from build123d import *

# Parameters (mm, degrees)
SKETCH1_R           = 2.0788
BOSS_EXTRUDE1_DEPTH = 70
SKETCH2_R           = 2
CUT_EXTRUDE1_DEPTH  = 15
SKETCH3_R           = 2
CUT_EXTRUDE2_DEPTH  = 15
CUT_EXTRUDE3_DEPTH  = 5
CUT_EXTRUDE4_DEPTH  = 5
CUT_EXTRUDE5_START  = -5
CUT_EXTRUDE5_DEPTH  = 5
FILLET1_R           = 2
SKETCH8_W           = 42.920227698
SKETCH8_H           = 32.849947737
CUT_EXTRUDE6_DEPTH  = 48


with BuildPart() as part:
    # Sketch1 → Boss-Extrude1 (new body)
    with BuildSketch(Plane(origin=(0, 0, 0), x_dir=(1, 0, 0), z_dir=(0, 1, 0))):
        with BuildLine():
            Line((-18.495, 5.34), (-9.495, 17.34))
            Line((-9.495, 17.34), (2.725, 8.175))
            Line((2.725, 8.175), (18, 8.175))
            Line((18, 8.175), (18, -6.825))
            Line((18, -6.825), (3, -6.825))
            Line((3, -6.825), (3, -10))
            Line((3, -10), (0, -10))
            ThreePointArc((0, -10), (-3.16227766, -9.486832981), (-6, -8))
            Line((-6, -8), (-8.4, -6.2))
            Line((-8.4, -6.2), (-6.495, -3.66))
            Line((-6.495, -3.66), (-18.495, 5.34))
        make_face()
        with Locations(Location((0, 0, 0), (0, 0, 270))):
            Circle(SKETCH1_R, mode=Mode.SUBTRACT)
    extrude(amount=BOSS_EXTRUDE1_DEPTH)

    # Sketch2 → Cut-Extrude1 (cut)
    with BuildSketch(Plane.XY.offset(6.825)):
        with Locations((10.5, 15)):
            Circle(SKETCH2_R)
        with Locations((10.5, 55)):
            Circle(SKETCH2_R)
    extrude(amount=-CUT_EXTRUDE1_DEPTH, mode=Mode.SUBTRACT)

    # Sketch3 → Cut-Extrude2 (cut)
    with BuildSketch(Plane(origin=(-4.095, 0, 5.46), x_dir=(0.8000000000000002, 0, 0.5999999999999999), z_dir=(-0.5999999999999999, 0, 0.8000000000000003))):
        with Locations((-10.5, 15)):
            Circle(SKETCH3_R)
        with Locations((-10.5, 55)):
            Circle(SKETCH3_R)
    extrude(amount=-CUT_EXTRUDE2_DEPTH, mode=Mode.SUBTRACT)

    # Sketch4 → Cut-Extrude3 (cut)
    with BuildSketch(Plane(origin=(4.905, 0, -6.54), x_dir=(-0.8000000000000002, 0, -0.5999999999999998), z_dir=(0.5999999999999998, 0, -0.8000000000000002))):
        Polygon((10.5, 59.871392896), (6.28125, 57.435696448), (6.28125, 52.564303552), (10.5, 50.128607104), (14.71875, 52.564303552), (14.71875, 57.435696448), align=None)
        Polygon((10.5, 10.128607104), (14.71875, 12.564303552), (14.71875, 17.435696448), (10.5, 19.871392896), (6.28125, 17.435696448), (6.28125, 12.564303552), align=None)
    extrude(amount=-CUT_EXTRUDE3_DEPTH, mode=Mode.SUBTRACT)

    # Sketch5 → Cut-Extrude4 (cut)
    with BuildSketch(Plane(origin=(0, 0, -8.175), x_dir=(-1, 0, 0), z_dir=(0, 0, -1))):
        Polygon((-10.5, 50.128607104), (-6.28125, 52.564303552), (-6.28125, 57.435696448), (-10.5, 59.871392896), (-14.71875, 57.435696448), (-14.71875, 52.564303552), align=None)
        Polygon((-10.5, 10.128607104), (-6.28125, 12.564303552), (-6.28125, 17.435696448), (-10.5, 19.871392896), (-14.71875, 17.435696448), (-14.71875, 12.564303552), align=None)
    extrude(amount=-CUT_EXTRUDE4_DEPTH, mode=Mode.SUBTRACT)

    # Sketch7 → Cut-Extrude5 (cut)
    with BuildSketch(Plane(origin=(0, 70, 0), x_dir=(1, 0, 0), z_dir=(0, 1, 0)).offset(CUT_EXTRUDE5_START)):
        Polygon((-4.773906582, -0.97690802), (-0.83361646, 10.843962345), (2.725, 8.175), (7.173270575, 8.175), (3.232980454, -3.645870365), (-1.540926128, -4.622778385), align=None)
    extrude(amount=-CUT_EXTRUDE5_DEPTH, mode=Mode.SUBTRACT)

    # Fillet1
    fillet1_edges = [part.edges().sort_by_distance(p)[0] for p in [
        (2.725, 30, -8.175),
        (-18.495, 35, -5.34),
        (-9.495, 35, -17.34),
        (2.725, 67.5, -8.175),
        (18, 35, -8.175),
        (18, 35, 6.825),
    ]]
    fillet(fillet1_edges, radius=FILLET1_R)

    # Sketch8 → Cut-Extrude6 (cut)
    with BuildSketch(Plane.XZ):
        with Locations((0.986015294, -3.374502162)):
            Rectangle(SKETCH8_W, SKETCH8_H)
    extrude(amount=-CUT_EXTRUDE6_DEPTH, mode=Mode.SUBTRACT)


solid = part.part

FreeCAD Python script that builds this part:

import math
import FreeCAD as App
import Part
import Sketcher

V = App.Vector
Q = App.Units.Quantity


def edges_at(feature, points):
    """Names of the edges that pass closest to the given points."""
    edges = feature.Shape.Edges
    near = lambda p: min(range(len(edges)), key=lambda i: edges[i].distToShape(Part.Vertex(*p))[0])
    return sorted({f"Edge{near(p) + 1}" for p in points})

doc = App.newDocument("Part")
body = doc.addObject("PartDesign::Body", "Body")

# Sketch on XZ plane
sketch1 = body.newObject("Sketcher::SketchObject", "Sketch")
sketch1.AttachmentSupport = (doc.getObject("XZ_Plane"), [""])
sketch1.MapMode = "FlatFace"
sketch1.addGeometry(Part.LineSegment(V(-9.5, -17.3, 0), V(-18.5, -5.3, 0)), False)
sketch1.addGeometry(Part.LineSegment(V(-18.5, -5.3, 0), V(-6.5, 3.7, 0)), False)
sketch1.addGeometry(Part.LineSegment(V(-6.5, 3.7, 0), V(-8.4, 6.2, 0)), False)
sketch1.addGeometry(Part.LineSegment(V(-8.4, 6.2, 0), V(-6, 8, 0)), False)
sketch1.addGeometry(Part.ArcOfCircle(Part.Circle(V(0, 0, 0), V(0, 0, 1), 10), math.radians(90), math.radians(127)), False)
sketch1.addGeometry(Part.LineSegment(V(0, 10, 0), V(3, 10, 0)), False)
sketch1.addGeometry(Part.LineSegment(V(3, 10, 0), V(3, 6.8, 0)), False)
sketch1.addGeometry(Part.LineSegment(V(3, 6.8, 0), V(18, 6.8, 0)), False)
sketch1.addGeometry(Part.LineSegment(V(18, 6.8, 0), V(18, -8.2, 0)), False)
sketch1.addGeometry(Part.LineSegment(V(18, -8.2, 0), V(2.7, -8.2, 0)), False)
sketch1.addGeometry(Part.LineSegment(V(2.7, -8.2, 0), V(-9.5, -17.3, 0)), False)
sketch1.addGeometry(Part.Circle(V(0, 0, 0), V(0, 0, 1), 2.1), False)
sketch1.addConstraint(Sketcher.Constraint("Coincident", 0, 2, 1, 1))
sketch1.addConstraint(Sketcher.Constraint("Coincident", 1, 2, 2, 1))
sketch1.addConstraint(Sketcher.Constraint("Coincident", 2, 2, 3, 1))
sketch1.addConstraint(Sketcher.Constraint("Tangent", 3, 2, 4, 2))
sketch1.addConstraint(Sketcher.Constraint("Tangent", 4, 1, 5, 1))
sketch1.addConstraint(Sketcher.Constraint("Coincident", 5, 2, 6, 1))
sketch1.addConstraint(Sketcher.Constraint("Coincident", 6, 2, 7, 1))
sketch1.addConstraint(Sketcher.Constraint("Coincident", 7, 2, 8, 1))
sketch1.addConstraint(Sketcher.Constraint("Coincident", 8, 2, 9, 1))
sketch1.addConstraint(Sketcher.Constraint("Coincident", 9, 2, 10, 1))
sketch1.addConstraint(Sketcher.Constraint("Coincident", 10, 2, 0, 1))
sketch1.addConstraint(Sketcher.Constraint("Horizontal", 5))
sketch1.addConstraint(Sketcher.Constraint("Vertical", 6))
sketch1.addConstraint(Sketcher.Constraint("Horizontal", 7))
sketch1.addConstraint(Sketcher.Constraint("Vertical", 8))
sketch1.addConstraint(Sketcher.Constraint("Horizontal", 9))
sketch1.addConstraint(Sketcher.Constraint("Coincident", 4, 3, -1, 1))
sketch1.addConstraint(Sketcher.Constraint("Coincident", 11, 3, -1, 1))
sketch1.addConstraint(Sketcher.Constraint("Perpendicular", 0, 1))
sketch1.addConstraint(Sketcher.Constraint("Perpendicular", 1, 2))
sketch1.addConstraint(Sketcher.Constraint("Perpendicular", 2, 3))
sketch1.addConstraint(Sketcher.Constraint("Parallel", 3, 10))
sketch1.addConstraint(Sketcher.Constraint("Equal", 7, 8))
sketch1.addConstraint(Sketcher.Constraint("Equal", 0, 1))
sketch1.addConstraint(Sketcher.Constraint("Radius", 4, Q("10 mm")))
sketch1.addConstraint(Sketcher.Constraint("DistanceX", 5, 1, 5, 2, Q("3 mm")))
sketch1.addConstraint(Sketcher.Constraint("DistanceX", 7, 1, 7, 2, Q("15 mm")))
sketch1.addConstraint(Sketcher.Constraint("Distance", 0, Q("15 mm")))
sketch1.addConstraint(Sketcher.Constraint("Distance", 3, Q("3 mm")))
sketch1.addConstraint(Sketcher.Constraint("DistanceX", 3, 2, -1, 1, Q("6 mm")))
sketch1.addConstraint(Sketcher.Constraint("Diameter", 11, Q("4.1576 mm")))
sketch1.addConstraint(Sketcher.Constraint("DistanceX", 9, 2, 9, 1, Q("15.275 mm")))
sketch1.addConstraint(Sketcher.Constraint("DistanceY", 6, 2, 6, 1, Q("3.175 mm")))
pad1 = body.newObject("PartDesign::Pad", "Pad")
pad1.Profile = sketch1
pad1.Length = 70
pad1.Reversed = True

# Sketch on XY plane
sketch2 = body.newObject("Sketcher::SketchObject", "Sketch001")
sketch2.AttachmentSupport = (doc.getObject("XY_Plane"), [""])
sketch2.MapMode = "FlatFace"
sketch2.AttachmentOffset = App.Placement(V(0, 0, 6.825), App.Rotation())
sketch2.addGeometry(Part.Circle(V(10.5, 15, 0), V(0, 0, 1), 2), False)
sketch2.addGeometry(Part.Circle(V(10.5, 55, 0), V(0, 0, 1), 2), False)
sketch2.addConstraint(Sketcher.Constraint("Equal", 0, 1))
sketch2.addConstraint(Sketcher.Constraint("Vertical", 0, 3, 1, 3))
sketch2.addConstraint(Sketcher.Constraint("Diameter", 0, Q("4 mm")))
sketch2.addConstraint(Sketcher.Constraint("DistanceY", -1, 1, 0, 3, Q("15 mm")))
sketch2.addConstraint(Sketcher.Constraint("DistanceY", -1, 1, 1, 3, Q("55 mm")))
sketch2.addConstraint(Sketcher.Constraint("DistanceX", -1, 1, 0, 3, Q("10.5 mm")))
pocket1 = body.newObject("PartDesign::Pocket", "Pocket")
pocket1.Profile = sketch2
pocket1.Length = 15

# Sketch on an angled plane
sketch3 = body.newObject("Sketcher::SketchObject", "Sketch002")
sketch3.Placement = App.Placement(V(-4.095, 0, 5.46), App.Rotation(V(0.8, 0, 0.6), V(0, 1, 0), V(-0.6, 0, 0.8), "ZXY"))
sketch3.addGeometry(Part.Circle(V(-10.5, 15, 0), V(0, 0, 1), 2), False)
sketch3.addGeometry(Part.Circle(V(-10.5, 55, 0), V(0, 0, 1), 2), False)
sketch3.addConstraint(Sketcher.Constraint("Equal", 0, 1))
sketch3.addConstraint(Sketcher.Constraint("Vertical", 0, 3, 1, 3))
sketch3.addConstraint(Sketcher.Constraint("Diameter", 0, Q("4 mm")))
sketch3.addConstraint(Sketcher.Constraint("DistanceY", -1, 1, 0, 3, Q("15 mm")))
sketch3.addConstraint(Sketcher.Constraint("DistanceY", -1, 1, 1, 3, Q("55 mm")))
sketch3.addConstraint(Sketcher.Constraint("DistanceX", 0, 3, -1, 1, Q("10.5 mm")))
pocket2 = body.newObject("PartDesign::Pocket", "Pocket001")
pocket2.Profile = sketch3
pocket2.Length = 15

# Sketch on an angled plane
sketch4 = body.newObject("Sketcher::SketchObject", "Sketch003")
sketch4.Placement = App.Placement(V(4.905, 0, -6.54), App.Rotation(V(-0.8, 0, -0.6), V(0, 1, 0), V(0.6, 0, -0.8), "ZXY"))
sketch4.addGeometry(Part.LineSegment(V(10.5, 59.9, 0), V(6.3, 57.4, 0)), False)
sketch4.addGeometry(Part.LineSegment(V(6.3, 57.4, 0), V(6.3, 52.6, 0)), False)
sketch4.addGeometry(Part.LineSegment(V(6.3, 52.6, 0), V(10.5, 50.1, 0)), False)
sketch4.addGeometry(Part.LineSegment(V(10.5, 50.1, 0), V(14.7, 52.6, 0)), False)
sketch4.addGeometry(Part.LineSegment(V(14.7, 52.6, 0), V(14.7, 57.4, 0)), False)
sketch4.addGeometry(Part.LineSegment(V(14.7, 57.4, 0), V(10.5, 59.9, 0)), False)
sketch4.addGeometry(Part.LineSegment(V(10.5, 10.1, 0), V(14.7, 12.6, 0)), False)
sketch4.addGeometry(Part.LineSegment(V(14.7, 12.6, 0), V(14.7, 17.4, 0)), False)
sketch4.addGeometry(Part.LineSegment(V(14.7, 17.4, 0), V(10.5, 19.9, 0)), False)
sketch4.addGeometry(Part.LineSegment(V(10.5, 19.9, 0), V(6.3, 17.4, 0)), False)
sketch4.addGeometry(Part.LineSegment(V(6.3, 17.4, 0), V(6.3, 12.6, 0)), False)
sketch4.addGeometry(Part.LineSegment(V(6.3, 12.6, 0), V(10.5, 10.1, 0)), False)
sketch4.addConstraint(Sketcher.Constraint("Coincident", 0, 2, 1, 1))
sketch4.addConstraint(Sketcher.Constraint("Coincident", 1, 2, 2, 1))
sketch4.addConstraint(Sketcher.Constraint("Coincident", 2, 2, 3, 1))
sketch4.addConstraint(Sketcher.Constraint("Coincident", 3, 2, 4, 1))
sketch4.addConstraint(Sketcher.Constraint("Coincident", 4, 2, 5, 1))
sketch4.addConstraint(Sketcher.Constraint("Coincident", 5, 2, 0, 1))
sketch4.addConstraint(Sketcher.Constraint("Coincident", 6, 2, 7, 1))
sketch4.addConstraint(Sketcher.Constraint("Coincident", 7, 2, 8, 1))
sketch4.addConstraint(Sketcher.Constraint("Coincident", 8, 2, 9, 1))
sketch4.addConstraint(Sketcher.Constraint("Coincident", 9, 2, 10, 1))
sketch4.addConstraint(Sketcher.Constraint("Coincident", 10, 2, 11, 1))
sketch4.addConstraint(Sketcher.Constraint("Coincident", 11, 2, 6, 1))
sketch4.addConstraint(Sketcher.Constraint("Vertical", 1))
sketch4.addConstraint(Sketcher.Constraint("Vertical", 4))
sketch4.addConstraint(Sketcher.Constraint("Vertical", 7))
sketch4.addConstraint(Sketcher.Constraint("Vertical", 10))
sketch4.addConstraint(Sketcher.Constraint("Parallel", 0, 3))
sketch4.addConstraint(Sketcher.Constraint("Parallel", 2, 5))
sketch4.addConstraint(Sketcher.Constraint("Parallel", 3, 6))
sketch4.addConstraint(Sketcher.Constraint("Parallel", 5, 8))
sketch4.addConstraint(Sketcher.Constraint("Parallel", 6, 9))
sketch4.addConstraint(Sketcher.Constraint("Parallel", 8, 11))
sketch4.addConstraint(Sketcher.Constraint("Horizontal", 1, 2, 3, 2))
sketch4.addConstraint(Sketcher.Constraint("Horizontal", 0, 2, 4, 2))
sketch4.addConstraint(Sketcher.Constraint("Horizontal", 7, 2, 9, 2))
sketch4.addConstraint(Sketcher.Constraint("Horizontal", 6, 2, 10, 2))
sketch4.addConstraint(Sketcher.Constraint("Vertical", 2, 2, 5, 2))
sketch4.addConstraint(Sketcher.Constraint("Vertical", 4, 2, 6, 2))
sketch4.addConstraint(Sketcher.Constraint("Vertical", 5, 2, 8, 2))
sketch4.addConstraint(Sketcher.Constraint("Equal", 4, 7))
sketch4.addConstraint(Sketcher.Constraint("Angle", 0, Q("-150 deg")))
sketch4.addConstraint(Sketcher.Constraint("DistanceY", 6, 2, 3, 2, Q("40 mm")))
sketch4.addConstraint(Sketcher.Constraint("DistanceX", -1, 1, 2, 2, Q("10.5 mm")))
sketch4.addConstraint(Sketcher.Constraint("DistanceX", 1, 2, 3, 2, Q("8.4375 mm")))
sketch4.addConstraint(Sketcher.Constraint("DistanceY", 1, 2, 1, 1, Q("4.871393 mm")))
sketch4.addConstraint(Sketcher.Constraint("DistanceY", -1, 1, 0, 2, Q("57.435696 mm")))
pocket3 = body.newObject("PartDesign::Pocket", "Pocket002")
pocket3.Profile = sketch4
pocket3.Length = 5

# Sketch on XY plane
sketch5 = body.newObject("Sketcher::SketchObject", "Sketch004")
sketch5.AttachmentSupport = (doc.getObject("XY_Plane"), [""])
sketch5.MapMode = "FlatFace"
sketch5.AttachmentOffset = App.Placement(V(0, 0, -8.175), App.Rotation())
sketch5.addGeometry(Part.LineSegment(V(10.5, 50.1, 0), V(6.3, 52.6, 0)), False)
sketch5.addGeometry(Part.LineSegment(V(6.3, 52.6, 0), V(6.3, 57.4, 0)), False)
sketch5.addGeometry(Part.LineSegment(V(6.3, 57.4, 0), V(10.5, 59.9, 0)), False)
sketch5.addGeometry(Part.LineSegment(V(10.5, 59.9, 0), V(14.7, 57.4, 0)), False)
sketch5.addGeometry(Part.LineSegment(V(14.7, 57.4, 0), V(14.7, 52.6, 0)), False)
sketch5.addGeometry(Part.LineSegment(V(14.7, 52.6, 0), V(10.5, 50.1, 0)), False)
sketch5.addGeometry(Part.LineSegment(V(10.5, 10.1, 0), V(6.3, 12.6, 0)), False)
sketch5.addGeometry(Part.LineSegment(V(6.3, 12.6, 0), V(6.3, 17.4, 0)), False)
sketch5.addGeometry(Part.LineSegment(V(6.3, 17.4, 0), V(10.5, 19.9, 0)), False)
sketch5.addGeometry(Part.LineSegment(V(10.5, 19.9, 0), V(14.7, 17.4, 0)), False)
sketch5.addGeometry(Part.LineSegment(V(14.7, 17.4, 0), V(14.7, 12.6, 0)), False)
sketch5.addGeometry(Part.LineSegment(V(14.7, 12.6, 0), V(10.5, 10.1, 0)), False)
sketch5.addConstraint(Sketcher.Constraint("Coincident", 0, 2, 1, 1))
sketch5.addConstraint(Sketcher.Constraint("Coincident", 1, 2, 2, 1))
sketch5.addConstraint(Sketcher.Constraint("Coincident", 2, 2, 3, 1))
sketch5.addConstraint(Sketcher.Constraint("Coincident", 3, 2, 4, 1))
sketch5.addConstraint(Sketcher.Constraint("Coincident", 4, 2, 5, 1))
sketch5.addConstraint(Sketcher.Constraint("Coincident", 5, 2, 0, 1))
sketch5.addConstraint(Sketcher.Constraint("Coincident", 6, 2, 7, 1))
sketch5.addConstraint(Sketcher.Constraint("Coincident", 7, 2, 8, 1))
sketch5.addConstraint(Sketcher.Constraint("Coincident", 8, 2, 9, 1))
sketch5.addConstraint(Sketcher.Constraint("Coincident", 9, 2, 10, 1))
sketch5.addConstraint(Sketcher.Constraint("Coincident", 10, 2, 11, 1))
sketch5.addConstraint(Sketcher.Constraint("Coincident", 11, 2, 6, 1))
sketch5.addConstraint(Sketcher.Constraint("Vertical", 1))
sketch5.addConstraint(Sketcher.Constraint("Vertical", 4))
sketch5.addConstraint(Sketcher.Constraint("Vertical", 7))
sketch5.addConstraint(Sketcher.Constraint("Vertical", 10))
sketch5.addConstraint(Sketcher.Constraint("Parallel", 0, 3))
sketch5.addConstraint(Sketcher.Constraint("Parallel", 2, 5))
sketch5.addConstraint(Sketcher.Constraint("Parallel", 3, 6))
sketch5.addConstraint(Sketcher.Constraint("Parallel", 5, 8))
sketch5.addConstraint(Sketcher.Constraint("Parallel", 6, 9))
sketch5.addConstraint(Sketcher.Constraint("Parallel", 8, 11))
sketch5.addConstraint(Sketcher.Constraint("Horizontal", 1, 2, 3, 2))
sketch5.addConstraint(Sketcher.Constraint("Horizontal", 0, 2, 4, 2))
sketch5.addConstraint(Sketcher.Constraint("Horizontal", 7, 2, 9, 2))
sketch5.addConstraint(Sketcher.Constraint("Horizontal", 6, 2, 10, 2))
sketch5.addConstraint(Sketcher.Constraint("Vertical", 2, 2, 5, 2))
sketch5.addConstraint(Sketcher.Constraint("Vertical", 1, 2, 6, 2))
sketch5.addConstraint(Sketcher.Constraint("Vertical", 5, 2, 8, 2))
sketch5.addConstraint(Sketcher.Constraint("Equal", 4, 7))
sketch5.addConstraint(Sketcher.Constraint("Angle", 0, Q("150 deg")))
sketch5.addConstraint(Sketcher.Constraint("DistanceY", 6, 2, 0, 2, Q("40 mm")))
sketch5.addConstraint(Sketcher.Constraint("DistanceX", -1, 1, 2, 2, Q("10.5 mm")))
sketch5.addConstraint(Sketcher.Constraint("DistanceX", 1, 2, 3, 2, Q("8.4375 mm")))
sketch5.addConstraint(Sketcher.Constraint("DistanceY", 1, 1, 1, 2, Q("4.871393 mm")))
sketch5.addConstraint(Sketcher.Constraint("DistanceY", -1, 1, 0, 2, Q("52.564304 mm")))
pocket4 = body.newObject("PartDesign::Pocket", "Pocket003")
pocket4.Profile = sketch5
pocket4.Length = 5
pocket4.Reversed = True

# Sketch on XZ plane
sketch6 = body.newObject("Sketcher::SketchObject", "Sketch005")
sketch6.AttachmentSupport = (doc.getObject("XZ_Plane"), [""])
sketch6.MapMode = "FlatFace"
sketch6.AttachmentOffset = App.Placement(V(0, 0, -65), App.Rotation())
sketch6.addGeometry(Part.LineSegment(V(-0.8, -10.8, 0), V(-4.8, 1, 0)), False)
sketch6.addGeometry(Part.LineSegment(V(-4.8, 1, 0), V(-1.5, 4.6, 0)), False)
sketch6.addGeometry(Part.LineSegment(V(-1.5, 4.6, 0), V(3.2, 3.6, 0)), False)
sketch6.addGeometry(Part.LineSegment(V(3.2, 3.6, 0), V(7.2, -8.2, 0)), False)
sketch6.addGeometry(Part.LineSegment(V(7.2, -8.2, 0), V(2.7, -8.2, 0)), False)
sketch6.addGeometry(Part.LineSegment(V(2.7, -8.2, 0), V(-0.8, -10.8, 0)), False)
sketch6.addConstraint(Sketcher.Constraint("Coincident", 0, 2, 1, 1))
sketch6.addConstraint(Sketcher.Constraint("Coincident", 1, 2, 2, 1))
sketch6.addConstraint(Sketcher.Constraint("Coincident", 2, 2, 3, 1))
sketch6.addConstraint(Sketcher.Constraint("Coincident", 3, 2, 4, 1))
sketch6.addConstraint(Sketcher.Constraint("Coincident", 4, 2, 5, 1))
sketch6.addConstraint(Sketcher.Constraint("Coincident", 5, 2, 0, 1))
sketch6.addConstraint(Sketcher.Constraint("Horizontal", 4))
sketch6.addConstraint(Sketcher.Constraint("Parallel", 0, 3))
sketch6.addConstraint(Sketcher.Constraint("Equal", 1, 2))
sketch6.addConstraint(Sketcher.Constraint("Equal", 0, 3))
sketch6.addConstraint(Sketcher.Constraint("DistanceY", 3, 2, -1, 1, Q("8.175 mm")))
sketch6.addConstraint(Sketcher.Constraint("DistanceX", -1, 1, 4, 2, Q("2.725 mm")))
sketch6.addConstraint(Sketcher.Constraint("DistanceX", 4, 2, 4, 1, Q("4.448271 mm")))
sketch6.addConstraint(Sketcher.Constraint("Distance", 0, Q("12.460291 mm")))
sketch6.addConstraint(Sketcher.Constraint("Distance", 5, Q("4.448271 mm")))
sketch6.addConstraint(Sketcher.Constraint("DistanceY", -1, 1, 0, 2, Q("0.976908 mm")))
sketch6.addConstraint(Sketcher.Constraint("DistanceY", -1, 1, 1, 2, Q("4.622778 mm")))
sketch6.addConstraint(Sketcher.Constraint("DistanceX", -1, 1, 2, 2, Q("3.23298 mm")))
pocket5 = body.newObject("PartDesign::Pocket", "Pocket004")
pocket5.Profile = sketch6
pocket5.Length = 5
pocket5.Reversed = True
doc.recompute()

fillet = body.newObject("PartDesign::Fillet", "Fillet")
fillet.Base = (pocket5, edges_at(pocket5, [
    (2.725, 30, -8.175),
    (-18.495, 35, -5.34),
    (-9.495, 35, -17.34),
    (2.725, 67.5, -8.175),
    (18, 35, -8.175),
    (18, 35, 6.825),
]))
fillet.Radius = 2

# Sketch on XZ plane
sketch7 = body.newObject("Sketcher::SketchObject", "Sketch006")
sketch7.AttachmentSupport = (doc.getObject("XZ_Plane"), [""])
sketch7.MapMode = "FlatFace"
sketch7.addGeometry(Part.LineSegment(V(-20, 13, 0), V(-20, -20, 0)), False)
sketch7.addGeometry(Part.LineSegment(V(-20, -20, 0), V(22, -20, 0)), False)
sketch7.addGeometry(Part.LineSegment(V(22, -20, 0), V(22, 13, 0)), False)
sketch7.addGeometry(Part.LineSegment(V(22, 13, 0), V(-20, 13, 0)), False)
sketch7.addConstraint(Sketcher.Constraint("Coincident", 0, 2, 1, 1))
sketch7.addConstraint(Sketcher.Constraint("Coincident", 1, 2, 2, 1))
sketch7.addConstraint(Sketcher.Constraint("Coincident", 2, 2, 3, 1))
sketch7.addConstraint(Sketcher.Constraint("Coincident", 3, 2, 0, 1))
sketch7.addConstraint(Sketcher.Constraint("Vertical", 0))
sketch7.addConstraint(Sketcher.Constraint("Horizontal", 1))
sketch7.addConstraint(Sketcher.Constraint("Vertical", 2))
sketch7.addConstraint(Sketcher.Constraint("Horizontal", 3))
sketch7.addConstraint(Sketcher.Constraint("DistanceX", 0, 2, -1, 1, Q("20.474099 mm")))
sketch7.addConstraint(Sketcher.Constraint("DistanceX", 1, 1, 1, 2, Q("42.920228 mm")))
sketch7.addConstraint(Sketcher.Constraint("DistanceY", 0, 2, 0, 1, Q("32.849948 mm")))
sketch7.addConstraint(Sketcher.Constraint("DistanceY", -1, 1, 2, 2, Q("13.050472 mm")))
pocket6 = body.newObject("PartDesign::Pocket", "Pocket005")
pocket6.Profile = sketch7
pocket6.Length = 48

doc.recompute()
